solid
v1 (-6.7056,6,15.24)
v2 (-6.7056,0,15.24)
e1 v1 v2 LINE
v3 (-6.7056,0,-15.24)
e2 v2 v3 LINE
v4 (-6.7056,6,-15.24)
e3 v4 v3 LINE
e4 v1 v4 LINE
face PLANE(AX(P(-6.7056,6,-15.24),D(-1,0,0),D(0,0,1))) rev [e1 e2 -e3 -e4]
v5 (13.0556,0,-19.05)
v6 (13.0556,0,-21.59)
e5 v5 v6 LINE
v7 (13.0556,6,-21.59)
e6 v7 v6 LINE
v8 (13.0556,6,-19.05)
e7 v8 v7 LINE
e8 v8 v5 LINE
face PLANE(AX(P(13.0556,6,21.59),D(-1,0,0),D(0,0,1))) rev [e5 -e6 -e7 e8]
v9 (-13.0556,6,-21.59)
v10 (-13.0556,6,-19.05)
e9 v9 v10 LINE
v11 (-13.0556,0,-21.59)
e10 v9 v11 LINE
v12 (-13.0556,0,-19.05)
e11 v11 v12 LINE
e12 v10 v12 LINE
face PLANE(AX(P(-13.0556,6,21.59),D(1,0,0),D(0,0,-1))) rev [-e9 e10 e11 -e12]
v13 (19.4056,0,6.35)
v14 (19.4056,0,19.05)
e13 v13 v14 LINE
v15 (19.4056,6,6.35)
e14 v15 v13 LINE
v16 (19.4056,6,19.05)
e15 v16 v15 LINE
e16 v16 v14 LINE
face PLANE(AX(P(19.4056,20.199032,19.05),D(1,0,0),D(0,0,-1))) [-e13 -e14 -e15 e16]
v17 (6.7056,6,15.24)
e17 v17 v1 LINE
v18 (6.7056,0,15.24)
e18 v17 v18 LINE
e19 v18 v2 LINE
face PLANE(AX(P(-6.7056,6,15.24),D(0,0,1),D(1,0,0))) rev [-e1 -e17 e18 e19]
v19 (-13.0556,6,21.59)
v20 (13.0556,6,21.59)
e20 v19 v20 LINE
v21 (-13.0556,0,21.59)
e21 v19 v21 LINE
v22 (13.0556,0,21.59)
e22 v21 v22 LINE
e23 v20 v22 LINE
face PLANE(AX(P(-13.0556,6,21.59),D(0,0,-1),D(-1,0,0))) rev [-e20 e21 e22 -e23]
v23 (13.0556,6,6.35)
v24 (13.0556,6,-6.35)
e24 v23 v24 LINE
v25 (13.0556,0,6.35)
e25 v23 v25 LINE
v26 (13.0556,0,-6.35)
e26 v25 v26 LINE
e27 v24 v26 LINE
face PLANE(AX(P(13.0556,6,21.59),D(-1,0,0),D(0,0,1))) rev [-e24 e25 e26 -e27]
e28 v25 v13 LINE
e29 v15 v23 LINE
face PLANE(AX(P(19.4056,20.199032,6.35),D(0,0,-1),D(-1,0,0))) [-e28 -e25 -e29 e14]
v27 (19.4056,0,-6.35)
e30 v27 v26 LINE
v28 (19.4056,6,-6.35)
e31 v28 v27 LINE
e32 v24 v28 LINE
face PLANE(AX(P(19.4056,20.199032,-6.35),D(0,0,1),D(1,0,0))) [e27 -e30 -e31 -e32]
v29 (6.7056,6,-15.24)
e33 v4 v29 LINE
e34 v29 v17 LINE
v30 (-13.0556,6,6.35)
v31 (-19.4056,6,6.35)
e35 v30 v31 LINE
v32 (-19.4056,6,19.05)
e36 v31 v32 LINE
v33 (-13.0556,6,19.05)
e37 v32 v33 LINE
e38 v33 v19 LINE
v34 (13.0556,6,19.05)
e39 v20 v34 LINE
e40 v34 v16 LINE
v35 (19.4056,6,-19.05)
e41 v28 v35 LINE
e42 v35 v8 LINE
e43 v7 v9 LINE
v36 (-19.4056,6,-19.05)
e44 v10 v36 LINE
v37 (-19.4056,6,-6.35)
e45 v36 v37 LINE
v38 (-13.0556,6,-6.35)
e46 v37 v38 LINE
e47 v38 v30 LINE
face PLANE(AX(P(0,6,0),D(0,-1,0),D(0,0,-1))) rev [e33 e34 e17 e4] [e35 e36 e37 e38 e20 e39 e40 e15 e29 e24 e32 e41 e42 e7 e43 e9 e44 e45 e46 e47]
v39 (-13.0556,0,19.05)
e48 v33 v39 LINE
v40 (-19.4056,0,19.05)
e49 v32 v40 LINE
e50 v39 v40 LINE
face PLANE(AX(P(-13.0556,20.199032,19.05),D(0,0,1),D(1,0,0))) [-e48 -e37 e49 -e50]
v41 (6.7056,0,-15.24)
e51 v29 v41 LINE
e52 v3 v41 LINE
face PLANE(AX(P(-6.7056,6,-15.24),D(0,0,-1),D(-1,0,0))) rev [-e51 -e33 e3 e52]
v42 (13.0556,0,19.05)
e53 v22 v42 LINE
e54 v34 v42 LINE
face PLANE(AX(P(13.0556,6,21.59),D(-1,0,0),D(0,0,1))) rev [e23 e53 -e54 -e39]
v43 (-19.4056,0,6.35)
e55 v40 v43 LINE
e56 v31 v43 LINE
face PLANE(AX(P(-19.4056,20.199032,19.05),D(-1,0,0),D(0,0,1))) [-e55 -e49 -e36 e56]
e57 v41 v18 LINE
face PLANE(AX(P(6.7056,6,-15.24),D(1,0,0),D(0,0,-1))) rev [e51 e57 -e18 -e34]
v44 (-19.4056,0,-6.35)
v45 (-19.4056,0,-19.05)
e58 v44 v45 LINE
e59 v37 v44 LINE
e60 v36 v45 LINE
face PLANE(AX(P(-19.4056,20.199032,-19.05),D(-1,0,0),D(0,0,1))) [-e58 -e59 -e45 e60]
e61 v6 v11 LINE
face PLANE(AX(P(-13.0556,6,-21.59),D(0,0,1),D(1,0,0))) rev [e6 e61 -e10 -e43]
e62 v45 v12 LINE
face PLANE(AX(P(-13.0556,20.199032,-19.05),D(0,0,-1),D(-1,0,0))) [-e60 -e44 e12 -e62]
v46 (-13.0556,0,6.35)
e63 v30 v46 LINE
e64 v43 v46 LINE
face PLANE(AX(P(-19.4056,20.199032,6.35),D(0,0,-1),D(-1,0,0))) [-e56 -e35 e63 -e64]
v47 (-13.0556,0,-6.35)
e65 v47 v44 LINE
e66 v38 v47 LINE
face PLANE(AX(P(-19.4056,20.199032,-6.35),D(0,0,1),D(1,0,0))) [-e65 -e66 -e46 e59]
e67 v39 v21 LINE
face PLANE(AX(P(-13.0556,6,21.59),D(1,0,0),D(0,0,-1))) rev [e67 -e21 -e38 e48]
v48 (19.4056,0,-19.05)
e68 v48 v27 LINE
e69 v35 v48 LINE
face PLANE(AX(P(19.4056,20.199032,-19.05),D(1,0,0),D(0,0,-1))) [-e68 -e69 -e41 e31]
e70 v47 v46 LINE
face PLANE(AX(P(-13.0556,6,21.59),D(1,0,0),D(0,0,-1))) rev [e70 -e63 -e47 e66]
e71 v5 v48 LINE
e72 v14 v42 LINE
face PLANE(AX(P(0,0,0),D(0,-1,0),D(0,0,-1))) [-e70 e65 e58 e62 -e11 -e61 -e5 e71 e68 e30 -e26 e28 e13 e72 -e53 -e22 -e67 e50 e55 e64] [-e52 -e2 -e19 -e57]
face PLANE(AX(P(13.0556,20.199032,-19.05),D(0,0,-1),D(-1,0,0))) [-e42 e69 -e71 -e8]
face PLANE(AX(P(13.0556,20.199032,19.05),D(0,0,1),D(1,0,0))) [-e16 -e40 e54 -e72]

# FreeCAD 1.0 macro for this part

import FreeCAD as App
import Part
import Sketcher
Q = App.Units.Quantity


def add_polygon(sketch, points):
    """Adds a closed chain of lines whose ends are joined by coincident constraints."""
    first, n = sketch.GeometryCount, len(points)
    for a, b in zip(points, points[1:] + points[:1]):
        sketch.addGeometry(Part.LineSegment(App.Vector(*a, 0), App.Vector(*b, 0)), False)
    for i in range(n):
        sketch.addConstraint(Sketcher.Constraint("Coincident", first + i, 2, first + (i + 1) % n, 1))

doc = App.newDocument("Part")
body = doc.addObject("PartDesign::Body", "Body")

# Sketch on XZ plane
sketch1 = body.newObject("Sketcher::SketchObject", "Sketch")
sketch1.AttachmentSupport = (doc.getObject("XZ_Plane"), [""])
sketch1.MapMode = "FlatFace"
add_polygon(sketch1, [(-13, -22), (-13, 22), (13, 22), (13, -22)])  # lines 0-3
sketch1.addConstraint(Sketcher.Constraint("Vertical", 0))
sketch1.addConstraint(Sketcher.Constraint("Horizontal", 1))
sketch1.addConstraint(Sketcher.Constraint("Vertical", 2))
sketch1.addConstraint(Sketcher.Constraint("Horizontal", 3))
sketch1.addConstraint(Sketcher.Constraint("Symmetric", 0, 2, 2, 2, -1, 1))
sketch1.addConstraint(Sketcher.Constraint("DistanceY", 0, 1, 0, 2, Q("1.7 in")))
sketch1.addConstraint(Sketcher.Constraint("DistanceX", 1, 1, 1, 2, Q("1.028 in")))
pad1 = body.newObject("PartDesign::Pad", "Pad")
pad1.Profile = sketch1
pad1.Length = 6
pad1.Reversed = True

# Sketch on XZ plane
sketch2 = body.newObject("Sketcher::SketchObject", "Sketch001")
sketch2.AttachmentSupport = (doc.getObject("XZ_Plane"), [""])
sketch2.MapMode = "FlatFace"
add_polygon(sketch2, [(-19, 19), (-19, 6), (-13, 6), (-13, 19)])  # lines 0-3
add_polygon(sketch2, [(13, 19), (13, 6), (19, 6), (19, 19)])  # lines 4-7
add_polygon(sketch2, [(13, -6), (13, -19), (19, -19), (19, -6)])  # lines 8-11
add_polygon(sketch2, [(-19, -6), (-19, -19), (-13, -19), (-13, -6)])  # lines 12-15
sketch2.addConstraint(Sketcher.Constraint("Vertical", 0))
sketch2.addConstraint(Sketcher.Constraint("Horizontal", 1))
sketch2.addConstraint(Sketcher.Constraint("Vertical", 2))
sketch2.addConstraint(Sketcher.Constraint("Horizontal", 3))
sketch2.addConstraint(Sketcher.Constraint("Vertical", 4))
sketch2.addConstraint(Sketcher.Constraint("Horizontal", 5))
sketch2.addConstraint(Sketcher.Constraint("Vertical", 6))
sketch2.addConstraint(Sketcher.Constraint("Horizontal", 7))
sketch2.addConstraint(Sketcher.Constraint("Vertical", 8))
sketch2.addConstraint(Sketcher.Constraint("Horizontal", 9))
sketch2.addConstraint(Sketcher.Constraint("Vertical", 10))
sketch2.addConstraint(Sketcher.Constraint("Horizontal", 11))
sketch2.addConstraint(Sketcher.Constraint("Vertical", 12))
sketch2.addConstraint(Sketcher.Constraint("Horizontal", 13))
sketch2.addConstraint(Sketcher.Constraint("Vertical", 14))
sketch2.addConstraint(Sketcher.Constraint("Horizontal", 15))
sketch2.addConstraint(Sketcher.Constraint("Symmetric", 2, 2, 8, 2, -1, 1))
sketch2.addConstraint(Sketcher.Constraint("Symmetric", 0, 2, 10, 2, -1, 1))
sketch2.addConstraint(Sketcher.Constraint("Symmetric", 6, 2, 12, 2, -1, 1))
sketch2.addConstraint(Sketcher.Constraint("Symmetric", 4, 2, 14, 2, -1, 1))
sketch2.addConstraint(Sketcher.Constraint("Symmetric", 1, 2, 4, 2, -2))
sketch2.addConstraint(Sketcher.Constraint("Symmetric", 3, 2, 6, 2, -2))
sketch2.addConstraint(Sketcher.Constraint("DistanceY", 0, 2, 0, 1, Q("0.5 in")))
sketch2.addConstraint(Sketcher.Constraint("DistanceY", 8, 2, 4, 2, Q("1 in")))
sketch2.addConstraint(Sketcher.Constraint("DistanceX", 1, 1, 1, 2, Q("0.25 in")))
sketch2.addConstraint(Sketcher.Constraint("DistanceX", 0, 2, -1, 1, Q("0.764 in")))
pad2 = body.newObject("PartDesign::Pad", "Pad001")
pad2.Profile = sketch2
pad2.Length = 6
pad2.Reversed = True

# Sketch on XZ plane
sketch3 = body.newObject("Sketcher::SketchObject", "Sketch002")
sketch3.AttachmentSupport = (doc.getObject("XZ_Plane"), [""])
sketch3.MapMode = "FlatFace"
add_polygon(sketch3, [(-7, 15), (-7, -15), (7, -15), (7, 15)])  # lines 0-3
sketch3.addConstraint(Sketcher.Constraint("Vertical", 0))
sketch3.addConstraint(Sketcher.Constraint("Horizontal", 1))
sketch3.addConstraint(Sketcher.Constraint("Vertical", 2))
sketch3.addConstraint(Sketcher.Constraint("Horizontal", 3))
sketch3.addConstraint(Sketcher.Constraint("Symmetric", 0, 2, 2, 2, -1, 1))
sketch3.addConstraint(Sketcher.Constraint("DistanceY", 0, 2, 0, 1, Q("1.2 in")))
sketch3.addConstraint(Sketcher.Constraint("DistanceX", 1, 1, 1, 2, Q("0.528 in")))
pocket1 = body.newObject("PartDesign::Pocket", "Pocket")
pocket1.Profile = sketch3
pocket1.Type = "ThroughAll"

doc.recompute()
